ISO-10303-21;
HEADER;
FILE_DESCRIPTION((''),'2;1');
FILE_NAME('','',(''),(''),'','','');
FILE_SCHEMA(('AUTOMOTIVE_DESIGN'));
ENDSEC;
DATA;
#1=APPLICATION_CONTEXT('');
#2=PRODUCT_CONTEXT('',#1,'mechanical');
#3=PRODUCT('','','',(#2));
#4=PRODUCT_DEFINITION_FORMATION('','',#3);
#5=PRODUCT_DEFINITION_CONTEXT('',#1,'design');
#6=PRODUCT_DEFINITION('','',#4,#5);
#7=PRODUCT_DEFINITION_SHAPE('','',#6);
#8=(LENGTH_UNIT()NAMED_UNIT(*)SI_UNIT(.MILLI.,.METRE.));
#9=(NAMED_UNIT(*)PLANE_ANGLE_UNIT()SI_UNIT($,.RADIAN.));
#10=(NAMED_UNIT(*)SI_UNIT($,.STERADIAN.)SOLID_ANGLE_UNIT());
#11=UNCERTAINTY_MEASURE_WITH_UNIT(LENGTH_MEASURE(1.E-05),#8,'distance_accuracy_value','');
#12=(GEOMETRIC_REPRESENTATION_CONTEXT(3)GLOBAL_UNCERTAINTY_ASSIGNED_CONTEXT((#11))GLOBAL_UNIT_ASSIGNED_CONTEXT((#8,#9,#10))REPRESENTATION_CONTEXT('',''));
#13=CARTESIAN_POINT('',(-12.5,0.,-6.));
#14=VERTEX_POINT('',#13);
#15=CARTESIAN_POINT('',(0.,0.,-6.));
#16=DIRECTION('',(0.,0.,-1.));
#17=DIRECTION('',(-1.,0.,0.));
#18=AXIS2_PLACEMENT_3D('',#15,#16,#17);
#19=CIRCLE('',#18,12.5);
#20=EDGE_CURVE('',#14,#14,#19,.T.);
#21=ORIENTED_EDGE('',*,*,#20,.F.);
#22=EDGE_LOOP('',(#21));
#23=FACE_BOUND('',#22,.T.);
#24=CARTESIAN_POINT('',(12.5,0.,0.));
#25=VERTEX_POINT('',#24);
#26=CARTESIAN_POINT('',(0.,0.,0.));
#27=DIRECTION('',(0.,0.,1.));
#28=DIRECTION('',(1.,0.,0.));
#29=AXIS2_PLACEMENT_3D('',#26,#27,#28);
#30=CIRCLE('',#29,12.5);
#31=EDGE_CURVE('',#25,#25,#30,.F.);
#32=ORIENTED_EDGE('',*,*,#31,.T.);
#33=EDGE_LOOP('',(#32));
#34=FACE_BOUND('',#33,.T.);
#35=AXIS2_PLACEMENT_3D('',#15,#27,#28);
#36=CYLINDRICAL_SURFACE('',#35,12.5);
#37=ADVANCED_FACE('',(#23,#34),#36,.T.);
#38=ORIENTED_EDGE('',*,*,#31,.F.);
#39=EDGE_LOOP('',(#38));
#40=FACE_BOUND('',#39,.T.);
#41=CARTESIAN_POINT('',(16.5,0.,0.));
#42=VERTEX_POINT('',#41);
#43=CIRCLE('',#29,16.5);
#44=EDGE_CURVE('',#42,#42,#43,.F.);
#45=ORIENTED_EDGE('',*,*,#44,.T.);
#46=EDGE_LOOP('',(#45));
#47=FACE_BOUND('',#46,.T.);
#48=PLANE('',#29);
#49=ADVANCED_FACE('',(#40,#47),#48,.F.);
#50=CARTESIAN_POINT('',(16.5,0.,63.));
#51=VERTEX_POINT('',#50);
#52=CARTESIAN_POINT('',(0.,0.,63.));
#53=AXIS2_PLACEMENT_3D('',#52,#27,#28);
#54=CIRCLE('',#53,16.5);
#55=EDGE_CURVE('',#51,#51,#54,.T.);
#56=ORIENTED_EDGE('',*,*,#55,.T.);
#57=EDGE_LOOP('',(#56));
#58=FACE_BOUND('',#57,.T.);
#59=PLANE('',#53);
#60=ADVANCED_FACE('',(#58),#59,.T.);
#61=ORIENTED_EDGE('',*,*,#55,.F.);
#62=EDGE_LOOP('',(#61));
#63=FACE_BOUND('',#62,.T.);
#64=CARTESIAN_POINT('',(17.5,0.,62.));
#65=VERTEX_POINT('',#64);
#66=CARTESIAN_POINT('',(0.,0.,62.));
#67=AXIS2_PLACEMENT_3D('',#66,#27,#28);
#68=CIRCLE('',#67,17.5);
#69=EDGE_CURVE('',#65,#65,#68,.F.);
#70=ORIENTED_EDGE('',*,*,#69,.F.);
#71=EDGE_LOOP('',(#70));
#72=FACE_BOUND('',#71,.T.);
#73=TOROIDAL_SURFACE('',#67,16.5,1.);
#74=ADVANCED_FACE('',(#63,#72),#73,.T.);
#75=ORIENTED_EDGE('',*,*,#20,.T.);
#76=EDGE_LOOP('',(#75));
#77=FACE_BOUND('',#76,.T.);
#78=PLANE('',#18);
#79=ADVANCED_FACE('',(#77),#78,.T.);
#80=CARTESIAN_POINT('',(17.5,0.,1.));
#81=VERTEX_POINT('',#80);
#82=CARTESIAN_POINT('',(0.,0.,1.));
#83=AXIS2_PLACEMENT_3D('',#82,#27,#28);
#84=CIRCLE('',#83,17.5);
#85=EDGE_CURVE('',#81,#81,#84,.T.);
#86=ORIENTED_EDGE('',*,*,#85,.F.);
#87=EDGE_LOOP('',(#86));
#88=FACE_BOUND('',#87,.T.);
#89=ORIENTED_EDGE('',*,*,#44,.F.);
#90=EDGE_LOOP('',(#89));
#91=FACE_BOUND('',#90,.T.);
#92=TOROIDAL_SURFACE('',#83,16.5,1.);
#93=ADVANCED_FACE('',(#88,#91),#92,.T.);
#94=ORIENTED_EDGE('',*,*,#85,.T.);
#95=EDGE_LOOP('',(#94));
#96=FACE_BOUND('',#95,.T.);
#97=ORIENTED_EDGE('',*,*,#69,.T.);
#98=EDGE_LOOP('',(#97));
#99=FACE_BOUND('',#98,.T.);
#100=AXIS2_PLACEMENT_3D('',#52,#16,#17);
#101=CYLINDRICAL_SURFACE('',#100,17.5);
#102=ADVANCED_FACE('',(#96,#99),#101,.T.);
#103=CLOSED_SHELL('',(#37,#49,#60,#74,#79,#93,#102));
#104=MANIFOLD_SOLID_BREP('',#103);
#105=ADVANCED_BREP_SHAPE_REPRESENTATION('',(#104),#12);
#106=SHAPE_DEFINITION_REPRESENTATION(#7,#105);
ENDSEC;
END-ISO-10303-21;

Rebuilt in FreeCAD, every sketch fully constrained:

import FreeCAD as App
import Part
import Sketcher

V = App.Vector
Q = App.Units.Quantity


def edges_at(feature, points):
    """Names of the edges that pass closest to the given points."""
    edges = feature.Shape.Edges
    near = lambda p: min(range(len(edges)), key=lambda i: edges[i].distToShape(Part.Vertex(*p))[0])
    return sorted({f"Edge{near(p) + 1}" for p in points})

doc = App.newDocument("Part")
params = doc.addObject("Spreadsheet::Sheet", "Params")
for row, (alias, value) in enumerate([
    ("sketch1_diameter", "35 mm"),
    ("pad1_length", "63 mm"),
    ("sketch2_diameter", "25 mm"),
    ("pad2_length", "6 mm"),
    ("fillet_radius", "1 mm"),
], start=1):
    params.set(f"A{row}", alias)
    params.set(f"B{row}", "=" + value)
    params.setAlias(f"B{row}", alias)

body = doc.addObject("PartDesign::Body", "Body")

sketch1 = body.newObject("Sketcher::SketchObject", "Sketch")
sketch1.AttachmentSupport = (doc.getObject("XY_Plane"), [""])
sketch1.MapMode = "FlatFace"
sketch1.addGeometry(Part.Circle(V(0, 0, 0), V(0, 0, 1), 18), False)
sketch1.addConstraint(Sketcher.Constraint("Coincident", 0, 3, -1, 1))
sketch1.addConstraint(Sketcher.Constraint("Diameter", 0, Q("35 mm")))
sketch1.setExpression("Constraints[1]", "Params.sketch1_diameter")
pad1 = body.newObject("PartDesign::Pad", "Pad")
pad1.Profile = sketch1
pad1.setExpression("Length", "Params.pad1_length")

sketch2 = body.newObject("Sketcher::SketchObject", "Sketch001")
sketch2.AttachmentSupport = (doc.getObject("XY_Plane"), [""])
sketch2.MapMode = "FlatFace"
sketch2.addGeometry(Part.Circle(V(0, 0, 0), V(0, 0, 1), 12), False)
sketch2.addConstraint(Sketcher.Constraint("Coincident", 0, 3, -1, 1))
sketch2.addConstraint(Sketcher.Constraint("Diameter", 0, Q("25 mm")))
sketch2.setExpression("Constraints[1]", "Params.sketch2_diameter")
pad2 = body.newObject("PartDesign::Pad", "Pad001")
pad2.Profile = sketch2
pad2.setExpression("Length", "Params.pad2_length")
pad2.Reversed = True
doc.recompute()

fillet = body.newObject("PartDesign::Fillet", "Fillet")
fillet.Base = (pad2, edges_at(pad2, [(-17.5, 0, 0), (-17.5, 0, 63)]))
fillet.setExpression("Radius", "Params.fillet_radius")

doc.recompute()
